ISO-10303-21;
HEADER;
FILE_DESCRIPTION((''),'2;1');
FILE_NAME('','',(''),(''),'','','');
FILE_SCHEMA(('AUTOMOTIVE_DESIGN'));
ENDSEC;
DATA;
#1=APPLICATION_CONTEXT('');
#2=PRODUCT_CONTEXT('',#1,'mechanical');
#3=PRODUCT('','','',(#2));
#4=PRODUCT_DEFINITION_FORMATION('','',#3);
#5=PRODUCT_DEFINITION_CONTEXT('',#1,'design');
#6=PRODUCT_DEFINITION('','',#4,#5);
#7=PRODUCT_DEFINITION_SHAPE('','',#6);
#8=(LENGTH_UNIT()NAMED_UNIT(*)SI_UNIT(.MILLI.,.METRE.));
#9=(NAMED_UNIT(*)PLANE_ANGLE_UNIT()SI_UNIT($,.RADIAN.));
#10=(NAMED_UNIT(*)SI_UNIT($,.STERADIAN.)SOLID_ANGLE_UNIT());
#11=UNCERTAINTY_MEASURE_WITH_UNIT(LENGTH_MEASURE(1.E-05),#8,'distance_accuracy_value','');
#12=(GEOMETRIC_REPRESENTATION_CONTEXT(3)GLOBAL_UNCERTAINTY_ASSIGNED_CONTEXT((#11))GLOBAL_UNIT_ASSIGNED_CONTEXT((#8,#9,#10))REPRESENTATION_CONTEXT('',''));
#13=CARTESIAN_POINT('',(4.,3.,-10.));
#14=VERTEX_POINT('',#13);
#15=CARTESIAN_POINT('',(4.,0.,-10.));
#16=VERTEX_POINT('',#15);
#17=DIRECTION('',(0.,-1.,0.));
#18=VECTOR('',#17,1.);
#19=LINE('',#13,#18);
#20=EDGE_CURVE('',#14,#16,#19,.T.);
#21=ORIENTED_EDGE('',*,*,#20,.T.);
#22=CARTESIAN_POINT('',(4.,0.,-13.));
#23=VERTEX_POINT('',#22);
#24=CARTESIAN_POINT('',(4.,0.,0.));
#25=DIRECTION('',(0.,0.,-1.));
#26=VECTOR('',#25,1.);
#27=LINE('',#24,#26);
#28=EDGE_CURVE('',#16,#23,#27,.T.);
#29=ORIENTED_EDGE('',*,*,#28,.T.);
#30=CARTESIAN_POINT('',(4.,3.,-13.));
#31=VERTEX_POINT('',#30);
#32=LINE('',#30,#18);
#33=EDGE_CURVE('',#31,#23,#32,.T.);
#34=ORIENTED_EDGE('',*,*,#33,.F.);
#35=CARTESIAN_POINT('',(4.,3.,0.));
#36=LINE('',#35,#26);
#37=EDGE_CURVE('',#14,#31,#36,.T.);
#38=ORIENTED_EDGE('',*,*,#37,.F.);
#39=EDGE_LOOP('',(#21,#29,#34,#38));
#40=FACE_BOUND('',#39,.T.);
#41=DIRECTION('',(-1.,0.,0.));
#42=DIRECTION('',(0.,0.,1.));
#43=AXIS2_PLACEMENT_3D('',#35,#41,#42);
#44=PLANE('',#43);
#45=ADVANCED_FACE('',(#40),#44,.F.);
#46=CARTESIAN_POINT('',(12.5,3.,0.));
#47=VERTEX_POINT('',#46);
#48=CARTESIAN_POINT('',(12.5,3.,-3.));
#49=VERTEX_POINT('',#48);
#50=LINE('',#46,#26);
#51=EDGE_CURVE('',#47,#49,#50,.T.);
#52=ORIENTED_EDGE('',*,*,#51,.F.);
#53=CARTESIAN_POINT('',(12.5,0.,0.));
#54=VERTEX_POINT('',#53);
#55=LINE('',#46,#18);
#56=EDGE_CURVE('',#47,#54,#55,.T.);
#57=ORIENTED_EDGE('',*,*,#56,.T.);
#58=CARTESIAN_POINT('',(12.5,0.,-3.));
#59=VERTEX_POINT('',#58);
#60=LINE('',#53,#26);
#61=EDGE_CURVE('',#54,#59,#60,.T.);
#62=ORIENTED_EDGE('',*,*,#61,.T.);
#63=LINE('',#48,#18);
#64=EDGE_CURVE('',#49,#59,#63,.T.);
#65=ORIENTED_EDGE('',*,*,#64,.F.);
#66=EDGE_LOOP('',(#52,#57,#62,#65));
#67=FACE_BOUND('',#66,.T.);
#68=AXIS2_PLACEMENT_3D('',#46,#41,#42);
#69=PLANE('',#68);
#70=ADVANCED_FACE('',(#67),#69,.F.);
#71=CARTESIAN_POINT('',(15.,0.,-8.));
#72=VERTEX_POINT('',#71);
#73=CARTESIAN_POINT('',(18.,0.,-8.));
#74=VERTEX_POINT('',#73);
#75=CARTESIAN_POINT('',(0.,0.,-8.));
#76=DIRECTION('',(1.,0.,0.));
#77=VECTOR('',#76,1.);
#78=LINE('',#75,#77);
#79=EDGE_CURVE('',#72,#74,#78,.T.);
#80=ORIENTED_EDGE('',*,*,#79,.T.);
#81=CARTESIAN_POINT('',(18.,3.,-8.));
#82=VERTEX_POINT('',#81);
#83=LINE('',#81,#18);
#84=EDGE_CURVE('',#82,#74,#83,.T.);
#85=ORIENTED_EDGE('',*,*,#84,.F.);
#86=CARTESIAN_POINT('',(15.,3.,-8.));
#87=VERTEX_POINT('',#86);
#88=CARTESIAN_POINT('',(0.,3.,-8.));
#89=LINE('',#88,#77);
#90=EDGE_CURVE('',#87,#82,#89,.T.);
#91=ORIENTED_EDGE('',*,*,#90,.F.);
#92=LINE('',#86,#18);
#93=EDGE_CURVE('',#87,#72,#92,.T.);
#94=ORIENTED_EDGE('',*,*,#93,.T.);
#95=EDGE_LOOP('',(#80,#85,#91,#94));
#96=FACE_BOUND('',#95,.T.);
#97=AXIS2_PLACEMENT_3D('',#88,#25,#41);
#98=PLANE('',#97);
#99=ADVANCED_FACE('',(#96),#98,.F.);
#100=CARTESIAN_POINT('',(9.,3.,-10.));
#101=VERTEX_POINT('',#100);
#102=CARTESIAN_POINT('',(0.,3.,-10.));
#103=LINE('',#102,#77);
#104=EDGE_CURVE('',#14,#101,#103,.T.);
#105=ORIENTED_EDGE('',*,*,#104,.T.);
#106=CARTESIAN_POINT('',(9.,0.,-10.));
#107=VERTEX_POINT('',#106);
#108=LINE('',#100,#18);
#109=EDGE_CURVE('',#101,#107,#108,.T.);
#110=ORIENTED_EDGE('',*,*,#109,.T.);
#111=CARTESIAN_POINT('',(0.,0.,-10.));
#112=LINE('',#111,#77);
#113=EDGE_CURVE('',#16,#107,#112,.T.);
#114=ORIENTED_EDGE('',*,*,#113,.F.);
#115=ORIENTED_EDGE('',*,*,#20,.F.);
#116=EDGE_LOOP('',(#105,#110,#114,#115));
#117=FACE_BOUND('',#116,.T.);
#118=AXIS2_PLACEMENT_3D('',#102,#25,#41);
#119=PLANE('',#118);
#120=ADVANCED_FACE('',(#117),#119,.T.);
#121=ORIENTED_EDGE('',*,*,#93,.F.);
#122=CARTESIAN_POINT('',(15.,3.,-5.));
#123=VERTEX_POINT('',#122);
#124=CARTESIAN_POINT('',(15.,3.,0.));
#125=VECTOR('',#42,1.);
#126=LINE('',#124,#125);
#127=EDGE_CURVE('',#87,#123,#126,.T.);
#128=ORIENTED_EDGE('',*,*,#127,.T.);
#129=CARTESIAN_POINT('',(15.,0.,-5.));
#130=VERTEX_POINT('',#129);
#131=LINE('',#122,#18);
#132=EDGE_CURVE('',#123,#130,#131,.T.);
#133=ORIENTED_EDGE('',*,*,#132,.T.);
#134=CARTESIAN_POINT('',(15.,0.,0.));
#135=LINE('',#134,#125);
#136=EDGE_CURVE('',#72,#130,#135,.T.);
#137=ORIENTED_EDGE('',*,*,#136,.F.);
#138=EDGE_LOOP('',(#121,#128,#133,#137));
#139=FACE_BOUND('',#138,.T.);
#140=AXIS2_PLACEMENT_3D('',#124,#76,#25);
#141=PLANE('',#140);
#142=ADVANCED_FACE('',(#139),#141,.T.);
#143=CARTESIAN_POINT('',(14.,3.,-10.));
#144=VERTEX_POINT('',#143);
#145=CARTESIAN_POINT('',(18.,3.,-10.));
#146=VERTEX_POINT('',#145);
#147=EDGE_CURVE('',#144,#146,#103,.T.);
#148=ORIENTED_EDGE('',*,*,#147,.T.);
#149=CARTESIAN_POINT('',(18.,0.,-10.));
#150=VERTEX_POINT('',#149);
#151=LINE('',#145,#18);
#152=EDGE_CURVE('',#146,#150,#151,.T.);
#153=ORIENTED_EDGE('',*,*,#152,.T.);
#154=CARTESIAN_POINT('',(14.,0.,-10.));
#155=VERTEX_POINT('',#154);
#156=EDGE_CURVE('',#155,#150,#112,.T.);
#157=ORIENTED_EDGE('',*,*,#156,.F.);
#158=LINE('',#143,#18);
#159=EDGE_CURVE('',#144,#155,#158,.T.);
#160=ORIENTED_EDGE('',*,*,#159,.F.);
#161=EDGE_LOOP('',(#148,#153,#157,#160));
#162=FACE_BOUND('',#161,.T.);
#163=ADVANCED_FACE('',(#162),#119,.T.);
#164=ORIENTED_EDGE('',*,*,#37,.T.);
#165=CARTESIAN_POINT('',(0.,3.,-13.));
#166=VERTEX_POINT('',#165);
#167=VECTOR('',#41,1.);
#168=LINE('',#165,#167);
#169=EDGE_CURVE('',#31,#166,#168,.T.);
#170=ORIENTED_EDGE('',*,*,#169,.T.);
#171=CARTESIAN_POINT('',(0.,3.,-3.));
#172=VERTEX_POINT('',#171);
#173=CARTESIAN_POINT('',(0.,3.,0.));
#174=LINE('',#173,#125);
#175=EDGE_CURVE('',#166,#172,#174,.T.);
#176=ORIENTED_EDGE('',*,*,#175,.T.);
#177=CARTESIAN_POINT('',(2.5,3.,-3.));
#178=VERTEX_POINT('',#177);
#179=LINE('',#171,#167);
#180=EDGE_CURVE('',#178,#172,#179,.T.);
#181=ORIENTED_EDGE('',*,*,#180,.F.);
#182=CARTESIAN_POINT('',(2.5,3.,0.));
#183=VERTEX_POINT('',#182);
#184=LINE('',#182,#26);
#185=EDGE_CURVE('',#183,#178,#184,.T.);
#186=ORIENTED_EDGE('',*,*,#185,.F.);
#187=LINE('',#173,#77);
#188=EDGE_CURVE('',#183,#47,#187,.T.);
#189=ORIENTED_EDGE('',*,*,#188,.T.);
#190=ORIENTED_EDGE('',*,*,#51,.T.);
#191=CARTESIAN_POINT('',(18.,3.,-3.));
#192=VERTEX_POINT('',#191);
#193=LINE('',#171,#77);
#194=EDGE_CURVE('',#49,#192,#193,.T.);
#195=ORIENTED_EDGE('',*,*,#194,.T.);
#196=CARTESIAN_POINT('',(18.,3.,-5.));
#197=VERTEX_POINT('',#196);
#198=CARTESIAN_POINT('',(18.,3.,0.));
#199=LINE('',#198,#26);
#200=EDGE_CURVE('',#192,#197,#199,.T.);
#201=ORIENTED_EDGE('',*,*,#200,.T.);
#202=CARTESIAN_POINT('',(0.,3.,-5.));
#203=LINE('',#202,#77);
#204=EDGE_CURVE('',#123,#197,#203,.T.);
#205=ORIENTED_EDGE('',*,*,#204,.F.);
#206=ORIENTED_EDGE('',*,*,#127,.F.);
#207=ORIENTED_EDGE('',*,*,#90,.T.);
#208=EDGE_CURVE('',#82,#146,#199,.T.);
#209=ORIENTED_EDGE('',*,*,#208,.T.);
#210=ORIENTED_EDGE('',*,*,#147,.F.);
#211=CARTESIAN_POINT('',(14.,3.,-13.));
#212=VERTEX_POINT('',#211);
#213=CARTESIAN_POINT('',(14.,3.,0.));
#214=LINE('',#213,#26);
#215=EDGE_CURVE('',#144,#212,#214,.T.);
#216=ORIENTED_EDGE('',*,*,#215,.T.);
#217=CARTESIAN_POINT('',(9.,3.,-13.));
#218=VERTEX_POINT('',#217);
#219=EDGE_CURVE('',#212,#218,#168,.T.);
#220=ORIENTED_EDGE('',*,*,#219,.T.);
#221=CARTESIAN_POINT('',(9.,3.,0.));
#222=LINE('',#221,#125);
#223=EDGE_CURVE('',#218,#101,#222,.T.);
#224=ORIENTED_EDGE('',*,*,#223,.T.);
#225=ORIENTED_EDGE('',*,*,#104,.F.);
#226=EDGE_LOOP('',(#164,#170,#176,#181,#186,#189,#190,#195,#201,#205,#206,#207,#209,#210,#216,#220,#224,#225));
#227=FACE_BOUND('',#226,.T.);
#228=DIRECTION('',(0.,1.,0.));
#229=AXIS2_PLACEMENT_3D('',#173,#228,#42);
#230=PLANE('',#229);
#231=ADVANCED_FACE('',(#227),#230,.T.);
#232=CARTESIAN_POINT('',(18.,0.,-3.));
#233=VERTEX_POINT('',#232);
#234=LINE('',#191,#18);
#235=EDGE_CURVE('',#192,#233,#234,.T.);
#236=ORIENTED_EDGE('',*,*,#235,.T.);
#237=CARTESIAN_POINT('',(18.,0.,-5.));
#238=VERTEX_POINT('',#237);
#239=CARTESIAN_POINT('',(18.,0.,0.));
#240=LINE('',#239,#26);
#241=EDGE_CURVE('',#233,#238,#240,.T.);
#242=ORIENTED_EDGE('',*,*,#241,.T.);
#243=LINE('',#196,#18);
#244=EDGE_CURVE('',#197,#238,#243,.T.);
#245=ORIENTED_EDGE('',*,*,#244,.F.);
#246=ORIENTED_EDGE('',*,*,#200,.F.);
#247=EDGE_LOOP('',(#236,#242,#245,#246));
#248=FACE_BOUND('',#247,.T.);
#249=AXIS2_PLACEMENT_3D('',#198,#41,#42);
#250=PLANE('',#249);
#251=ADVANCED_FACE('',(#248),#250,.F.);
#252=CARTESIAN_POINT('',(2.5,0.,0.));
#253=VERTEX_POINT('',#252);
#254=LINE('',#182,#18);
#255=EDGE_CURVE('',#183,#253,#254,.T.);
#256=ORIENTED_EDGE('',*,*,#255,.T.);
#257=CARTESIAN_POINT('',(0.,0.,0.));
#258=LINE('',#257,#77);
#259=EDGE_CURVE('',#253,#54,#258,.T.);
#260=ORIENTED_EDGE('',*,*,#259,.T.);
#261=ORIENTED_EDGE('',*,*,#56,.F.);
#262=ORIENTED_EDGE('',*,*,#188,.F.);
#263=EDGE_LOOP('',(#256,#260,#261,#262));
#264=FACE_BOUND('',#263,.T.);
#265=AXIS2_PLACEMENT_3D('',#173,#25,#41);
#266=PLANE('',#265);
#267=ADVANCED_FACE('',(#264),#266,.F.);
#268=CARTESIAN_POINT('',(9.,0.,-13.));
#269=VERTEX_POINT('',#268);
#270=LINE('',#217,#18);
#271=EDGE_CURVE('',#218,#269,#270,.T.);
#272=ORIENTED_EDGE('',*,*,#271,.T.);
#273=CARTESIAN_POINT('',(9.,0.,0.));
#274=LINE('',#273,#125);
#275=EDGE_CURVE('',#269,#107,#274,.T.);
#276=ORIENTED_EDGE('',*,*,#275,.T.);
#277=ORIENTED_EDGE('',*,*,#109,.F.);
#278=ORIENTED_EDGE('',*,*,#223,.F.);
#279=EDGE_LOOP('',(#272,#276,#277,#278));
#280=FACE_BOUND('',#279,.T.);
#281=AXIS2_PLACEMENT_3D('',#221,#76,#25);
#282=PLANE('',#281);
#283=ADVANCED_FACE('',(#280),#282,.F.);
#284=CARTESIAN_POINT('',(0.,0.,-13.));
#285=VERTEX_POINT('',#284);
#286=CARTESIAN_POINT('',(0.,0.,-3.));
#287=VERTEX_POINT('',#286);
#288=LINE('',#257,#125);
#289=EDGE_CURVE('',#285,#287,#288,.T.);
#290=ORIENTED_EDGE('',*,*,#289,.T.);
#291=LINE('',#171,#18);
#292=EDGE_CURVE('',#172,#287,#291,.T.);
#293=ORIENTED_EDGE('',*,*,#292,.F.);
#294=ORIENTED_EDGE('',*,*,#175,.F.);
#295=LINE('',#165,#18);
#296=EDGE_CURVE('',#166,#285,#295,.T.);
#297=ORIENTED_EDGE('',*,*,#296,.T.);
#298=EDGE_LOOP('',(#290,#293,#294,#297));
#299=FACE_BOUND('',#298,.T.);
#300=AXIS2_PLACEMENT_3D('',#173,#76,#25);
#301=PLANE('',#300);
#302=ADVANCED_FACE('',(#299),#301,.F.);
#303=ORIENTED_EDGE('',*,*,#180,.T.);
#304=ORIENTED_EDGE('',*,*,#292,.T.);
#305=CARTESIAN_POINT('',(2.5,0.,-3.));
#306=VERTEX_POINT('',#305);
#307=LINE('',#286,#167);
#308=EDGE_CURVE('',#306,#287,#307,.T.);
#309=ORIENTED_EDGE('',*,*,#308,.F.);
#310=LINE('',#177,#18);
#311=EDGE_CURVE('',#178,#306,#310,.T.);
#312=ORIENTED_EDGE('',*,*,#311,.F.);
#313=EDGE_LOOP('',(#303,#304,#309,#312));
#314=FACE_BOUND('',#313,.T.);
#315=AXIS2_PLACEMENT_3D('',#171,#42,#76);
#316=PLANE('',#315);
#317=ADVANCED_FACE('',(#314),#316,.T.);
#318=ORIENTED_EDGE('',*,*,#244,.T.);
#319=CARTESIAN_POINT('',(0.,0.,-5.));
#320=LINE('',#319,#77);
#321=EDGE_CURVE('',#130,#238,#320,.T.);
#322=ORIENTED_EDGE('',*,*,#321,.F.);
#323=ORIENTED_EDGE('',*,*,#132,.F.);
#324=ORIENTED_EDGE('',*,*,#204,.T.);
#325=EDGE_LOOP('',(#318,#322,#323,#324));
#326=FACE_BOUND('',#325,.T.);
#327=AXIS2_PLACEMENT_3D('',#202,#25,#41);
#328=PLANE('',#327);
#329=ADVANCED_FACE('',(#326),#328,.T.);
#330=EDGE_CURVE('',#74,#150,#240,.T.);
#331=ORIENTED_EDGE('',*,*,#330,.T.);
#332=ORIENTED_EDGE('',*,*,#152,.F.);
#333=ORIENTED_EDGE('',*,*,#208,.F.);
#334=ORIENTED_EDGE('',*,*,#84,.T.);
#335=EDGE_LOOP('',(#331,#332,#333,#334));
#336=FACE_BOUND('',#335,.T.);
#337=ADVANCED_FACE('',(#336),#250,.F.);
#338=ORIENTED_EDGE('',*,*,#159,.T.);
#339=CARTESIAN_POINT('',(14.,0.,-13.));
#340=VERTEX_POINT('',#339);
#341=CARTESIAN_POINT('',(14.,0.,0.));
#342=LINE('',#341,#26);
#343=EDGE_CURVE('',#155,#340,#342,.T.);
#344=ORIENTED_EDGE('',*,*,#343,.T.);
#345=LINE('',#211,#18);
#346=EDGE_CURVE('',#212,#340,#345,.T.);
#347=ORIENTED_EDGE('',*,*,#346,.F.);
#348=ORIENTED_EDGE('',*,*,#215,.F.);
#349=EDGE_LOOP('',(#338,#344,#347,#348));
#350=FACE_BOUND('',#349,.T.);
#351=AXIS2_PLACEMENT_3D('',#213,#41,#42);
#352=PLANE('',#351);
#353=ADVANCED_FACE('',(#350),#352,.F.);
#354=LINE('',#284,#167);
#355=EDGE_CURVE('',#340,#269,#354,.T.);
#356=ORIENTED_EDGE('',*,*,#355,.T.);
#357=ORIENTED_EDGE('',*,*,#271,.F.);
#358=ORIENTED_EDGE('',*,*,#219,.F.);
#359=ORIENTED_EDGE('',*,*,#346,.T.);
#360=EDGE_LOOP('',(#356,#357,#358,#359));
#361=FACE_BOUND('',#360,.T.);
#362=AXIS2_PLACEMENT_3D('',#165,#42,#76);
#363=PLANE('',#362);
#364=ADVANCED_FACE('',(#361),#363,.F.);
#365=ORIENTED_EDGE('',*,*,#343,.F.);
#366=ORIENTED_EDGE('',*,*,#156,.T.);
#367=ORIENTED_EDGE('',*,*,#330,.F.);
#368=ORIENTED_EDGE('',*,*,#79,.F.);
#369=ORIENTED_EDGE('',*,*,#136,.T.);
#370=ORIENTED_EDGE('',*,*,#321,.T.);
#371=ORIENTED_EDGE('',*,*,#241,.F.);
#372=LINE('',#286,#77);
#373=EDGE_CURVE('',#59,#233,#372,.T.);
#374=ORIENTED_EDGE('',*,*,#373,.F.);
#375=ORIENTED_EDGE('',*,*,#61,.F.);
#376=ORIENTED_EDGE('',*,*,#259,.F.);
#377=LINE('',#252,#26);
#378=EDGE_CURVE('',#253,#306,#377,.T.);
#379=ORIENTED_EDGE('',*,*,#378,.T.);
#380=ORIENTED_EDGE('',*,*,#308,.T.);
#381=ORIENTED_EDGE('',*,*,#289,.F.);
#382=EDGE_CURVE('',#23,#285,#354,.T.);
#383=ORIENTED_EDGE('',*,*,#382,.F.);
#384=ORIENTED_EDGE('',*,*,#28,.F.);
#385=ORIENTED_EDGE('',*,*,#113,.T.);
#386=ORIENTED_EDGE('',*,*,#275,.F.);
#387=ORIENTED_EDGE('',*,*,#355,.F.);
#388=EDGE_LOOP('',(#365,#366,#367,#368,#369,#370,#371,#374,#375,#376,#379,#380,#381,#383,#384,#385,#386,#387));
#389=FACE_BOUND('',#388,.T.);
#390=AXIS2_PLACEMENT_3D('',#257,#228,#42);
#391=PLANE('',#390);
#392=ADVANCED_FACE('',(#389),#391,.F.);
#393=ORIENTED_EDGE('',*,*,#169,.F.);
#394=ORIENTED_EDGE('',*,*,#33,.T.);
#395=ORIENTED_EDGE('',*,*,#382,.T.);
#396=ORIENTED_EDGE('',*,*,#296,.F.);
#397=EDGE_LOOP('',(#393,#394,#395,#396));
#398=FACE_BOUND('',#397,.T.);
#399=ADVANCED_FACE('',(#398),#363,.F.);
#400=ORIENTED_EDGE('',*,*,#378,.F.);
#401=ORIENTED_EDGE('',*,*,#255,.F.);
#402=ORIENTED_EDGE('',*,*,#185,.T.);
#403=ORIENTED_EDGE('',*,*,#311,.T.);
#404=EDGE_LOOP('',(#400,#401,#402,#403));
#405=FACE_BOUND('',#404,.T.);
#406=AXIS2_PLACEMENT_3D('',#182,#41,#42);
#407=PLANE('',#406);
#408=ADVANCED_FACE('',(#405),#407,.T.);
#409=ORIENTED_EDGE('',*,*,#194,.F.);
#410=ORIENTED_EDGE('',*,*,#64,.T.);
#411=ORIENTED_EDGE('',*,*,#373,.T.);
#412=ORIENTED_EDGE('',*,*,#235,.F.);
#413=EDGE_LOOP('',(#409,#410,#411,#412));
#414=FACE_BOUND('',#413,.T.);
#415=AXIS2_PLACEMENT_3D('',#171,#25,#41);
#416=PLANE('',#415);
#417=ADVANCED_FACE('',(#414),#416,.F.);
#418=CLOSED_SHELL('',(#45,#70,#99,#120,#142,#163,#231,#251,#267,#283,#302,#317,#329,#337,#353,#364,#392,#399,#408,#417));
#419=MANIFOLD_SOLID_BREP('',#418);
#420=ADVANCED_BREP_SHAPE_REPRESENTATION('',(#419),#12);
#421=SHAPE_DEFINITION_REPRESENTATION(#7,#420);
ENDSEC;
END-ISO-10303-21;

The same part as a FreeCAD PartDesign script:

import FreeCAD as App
import Part
import Sketcher

V = App.Vector
Q = App.Units.Quantity

doc = App.newDocument("Part")
body = doc.addObject("PartDesign::Body", "Body")

sketch1 = body.newObject("Sketcher::SketchObject", "Sketch")
sketch1.AttachmentSupport = (doc.getObject("XZ_Plane"), [""])
sketch1.MapMode = "FlatFace"
sketch1.addGeometry([
    Part.LineSegment(V(4, -10, 0), V(4, -13, 0)),
    Part.LineSegment(V(4, -13, 0), V(0, -13, 0)),
    Part.LineSegment(V(0, -13, 0), V(0, -3, 0)),
    Part.LineSegment(V(0, -3, 0), V(2.5, -3, 0)),
    Part.LineSegment(V(2.5, -3, 0), V(2.5, 0, 0)),
    Part.LineSegment(V(2.5, 0, 0), V(12.5, 0, 0)),
    Part.LineSegment(V(12.5, 0, 0), V(12.5, -3, 0)),
    Part.LineSegment(V(12.5, -3, 0), V(18, -3, 0)),
    Part.LineSegment(V(18, -3, 0), V(18, -5, 0)),
    Part.LineSegment(V(18, -5, 0), V(15, -5, 0)),
    Part.LineSegment(V(15, -5, 0), V(15, -8, 0)),
    Part.LineSegment(V(15, -8, 0), V(18, -8, 0)),
    Part.LineSegment(V(18, -8, 0), V(18, -10, 0)),
    Part.LineSegment(V(18, -10, 0), V(14, -10, 0)),
    Part.LineSegment(V(14, -10, 0), V(14, -13, 0)),
    Part.LineSegment(V(14, -13, 0), V(9, -13, 0)),
    Part.LineSegment(V(9, -13, 0), V(9, -10, 0)),
    Part.LineSegment(V(9, -10, 0), V(4, -10, 0)),
], False)
sketch1.addConstraint([
    Sketcher.Constraint("Coincident", 0, 2, 1, 1),
    Sketcher.Constraint("Coincident", 1, 2, 2, 1),
    Sketcher.Constraint("Coincident", 2, 2, 3, 1),
    Sketcher.Constraint("Coincident", 3, 2, 4, 1),
    Sketcher.Constraint("Coincident", 4, 2, 5, 1),
    Sketcher.Constraint("Coincident", 5, 2, 6, 1),
    Sketcher.Constraint("Coincident", 6, 2, 7, 1),
    Sketcher.Constraint("Coincident", 7, 2, 8, 1),
    Sketcher.Constraint("Coincident", 8, 2, 9, 1),
    Sketcher.Constraint("Coincident", 9, 2, 10, 1),
    Sketcher.Constraint("Coincident", 10, 2, 11, 1),
    Sketcher.Constraint("Coincident", 11, 2, 12, 1),
    Sketcher.Constraint("Coincident", 12, 2, 13, 1),
    Sketcher.Constraint("Coincident", 13, 2, 14, 1),
    Sketcher.Constraint("Coincident", 14, 2, 15, 1),
    Sketcher.Constraint("Coincident", 15, 2, 16, 1),
    Sketcher.Constraint("Coincident", 16, 2, 17, 1),
    Sketcher.Constraint("Coincident", 17, 2, 0, 1),
    Sketcher.Constraint("Vertical", 0),
    Sketcher.Constraint("Horizontal", 1),
    Sketcher.Constraint("Vertical", 2),
    Sketcher.Constraint("Horizontal", 3),
    Sketcher.Constraint("Vertical", 4),
    Sketcher.Constraint("Horizontal", 5),
    Sketcher.Constraint("Vertical", 6),
    Sketcher.Constraint("Horizontal", 7),
    Sketcher.Constraint("Vertical", 8),
    Sketcher.Constraint("Horizontal", 9),
    Sketcher.Constraint("Vertical", 10),
    Sketcher.Constraint("Horizontal", 11),
    Sketcher.Constraint("Vertical", 12),
    Sketcher.Constraint("Horizontal", 13),
    Sketcher.Constraint("Vertical", 14),
    Sketcher.Constraint("Horizontal", 15),
    Sketcher.Constraint("Vertical", 16),
    Sketcher.Constraint("Horizontal", 17),
    Sketcher.Constraint("PointOnObject", 1, 2, -2),
    Sketcher.Constraint("PointOnObject", 4, 2, -1),
    Sketcher.Constraint("Horizontal", 3, 2, 6, 2),
    Sketcher.Constraint("Horizontal", 1, 2, 14, 2),
    Sketcher.Constraint("Horizontal", 13, 2, 16, 2),
    Sketcher.Constraint("Vertical", 8, 2, 11, 2),
    Sketcher.Constraint("Equal", 1, 13),
    Sketcher.Constraint("Equal", 15, 17),
    Sketcher.Constraint("Equal", 11, 0),
    Sketcher.Constraint("Equal", 5, 2),
    Sketcher.Constraint("Equal", 0, 4),
    Sketcher.Constraint("Equal", 6, 10),
    Sketcher.Constraint("Equal", 8, 12),
    Sketcher.Constraint("DistanceX", 1, 2, 1, 1, Q("4 mm")),
    Sketcher.Constraint("DistanceX", 5, 1, 5, 2, Q("10 mm")),
    Sketcher.Constraint("DistanceX", 9, 2, 9, 1, Q("3 mm")),
    Sketcher.Constraint("DistanceX", 15, 2, 15, 1, Q("5 mm")),
    Sketcher.Constraint("DistanceX", 3, 1, 3, 2, Q("2.5 mm")),
])
pad1 = body.newObject("PartDesign::Pad", "Pad")
pad1.Profile = sketch1
pad1.Length = 3
pad1.Reversed = True

doc.recompute()
